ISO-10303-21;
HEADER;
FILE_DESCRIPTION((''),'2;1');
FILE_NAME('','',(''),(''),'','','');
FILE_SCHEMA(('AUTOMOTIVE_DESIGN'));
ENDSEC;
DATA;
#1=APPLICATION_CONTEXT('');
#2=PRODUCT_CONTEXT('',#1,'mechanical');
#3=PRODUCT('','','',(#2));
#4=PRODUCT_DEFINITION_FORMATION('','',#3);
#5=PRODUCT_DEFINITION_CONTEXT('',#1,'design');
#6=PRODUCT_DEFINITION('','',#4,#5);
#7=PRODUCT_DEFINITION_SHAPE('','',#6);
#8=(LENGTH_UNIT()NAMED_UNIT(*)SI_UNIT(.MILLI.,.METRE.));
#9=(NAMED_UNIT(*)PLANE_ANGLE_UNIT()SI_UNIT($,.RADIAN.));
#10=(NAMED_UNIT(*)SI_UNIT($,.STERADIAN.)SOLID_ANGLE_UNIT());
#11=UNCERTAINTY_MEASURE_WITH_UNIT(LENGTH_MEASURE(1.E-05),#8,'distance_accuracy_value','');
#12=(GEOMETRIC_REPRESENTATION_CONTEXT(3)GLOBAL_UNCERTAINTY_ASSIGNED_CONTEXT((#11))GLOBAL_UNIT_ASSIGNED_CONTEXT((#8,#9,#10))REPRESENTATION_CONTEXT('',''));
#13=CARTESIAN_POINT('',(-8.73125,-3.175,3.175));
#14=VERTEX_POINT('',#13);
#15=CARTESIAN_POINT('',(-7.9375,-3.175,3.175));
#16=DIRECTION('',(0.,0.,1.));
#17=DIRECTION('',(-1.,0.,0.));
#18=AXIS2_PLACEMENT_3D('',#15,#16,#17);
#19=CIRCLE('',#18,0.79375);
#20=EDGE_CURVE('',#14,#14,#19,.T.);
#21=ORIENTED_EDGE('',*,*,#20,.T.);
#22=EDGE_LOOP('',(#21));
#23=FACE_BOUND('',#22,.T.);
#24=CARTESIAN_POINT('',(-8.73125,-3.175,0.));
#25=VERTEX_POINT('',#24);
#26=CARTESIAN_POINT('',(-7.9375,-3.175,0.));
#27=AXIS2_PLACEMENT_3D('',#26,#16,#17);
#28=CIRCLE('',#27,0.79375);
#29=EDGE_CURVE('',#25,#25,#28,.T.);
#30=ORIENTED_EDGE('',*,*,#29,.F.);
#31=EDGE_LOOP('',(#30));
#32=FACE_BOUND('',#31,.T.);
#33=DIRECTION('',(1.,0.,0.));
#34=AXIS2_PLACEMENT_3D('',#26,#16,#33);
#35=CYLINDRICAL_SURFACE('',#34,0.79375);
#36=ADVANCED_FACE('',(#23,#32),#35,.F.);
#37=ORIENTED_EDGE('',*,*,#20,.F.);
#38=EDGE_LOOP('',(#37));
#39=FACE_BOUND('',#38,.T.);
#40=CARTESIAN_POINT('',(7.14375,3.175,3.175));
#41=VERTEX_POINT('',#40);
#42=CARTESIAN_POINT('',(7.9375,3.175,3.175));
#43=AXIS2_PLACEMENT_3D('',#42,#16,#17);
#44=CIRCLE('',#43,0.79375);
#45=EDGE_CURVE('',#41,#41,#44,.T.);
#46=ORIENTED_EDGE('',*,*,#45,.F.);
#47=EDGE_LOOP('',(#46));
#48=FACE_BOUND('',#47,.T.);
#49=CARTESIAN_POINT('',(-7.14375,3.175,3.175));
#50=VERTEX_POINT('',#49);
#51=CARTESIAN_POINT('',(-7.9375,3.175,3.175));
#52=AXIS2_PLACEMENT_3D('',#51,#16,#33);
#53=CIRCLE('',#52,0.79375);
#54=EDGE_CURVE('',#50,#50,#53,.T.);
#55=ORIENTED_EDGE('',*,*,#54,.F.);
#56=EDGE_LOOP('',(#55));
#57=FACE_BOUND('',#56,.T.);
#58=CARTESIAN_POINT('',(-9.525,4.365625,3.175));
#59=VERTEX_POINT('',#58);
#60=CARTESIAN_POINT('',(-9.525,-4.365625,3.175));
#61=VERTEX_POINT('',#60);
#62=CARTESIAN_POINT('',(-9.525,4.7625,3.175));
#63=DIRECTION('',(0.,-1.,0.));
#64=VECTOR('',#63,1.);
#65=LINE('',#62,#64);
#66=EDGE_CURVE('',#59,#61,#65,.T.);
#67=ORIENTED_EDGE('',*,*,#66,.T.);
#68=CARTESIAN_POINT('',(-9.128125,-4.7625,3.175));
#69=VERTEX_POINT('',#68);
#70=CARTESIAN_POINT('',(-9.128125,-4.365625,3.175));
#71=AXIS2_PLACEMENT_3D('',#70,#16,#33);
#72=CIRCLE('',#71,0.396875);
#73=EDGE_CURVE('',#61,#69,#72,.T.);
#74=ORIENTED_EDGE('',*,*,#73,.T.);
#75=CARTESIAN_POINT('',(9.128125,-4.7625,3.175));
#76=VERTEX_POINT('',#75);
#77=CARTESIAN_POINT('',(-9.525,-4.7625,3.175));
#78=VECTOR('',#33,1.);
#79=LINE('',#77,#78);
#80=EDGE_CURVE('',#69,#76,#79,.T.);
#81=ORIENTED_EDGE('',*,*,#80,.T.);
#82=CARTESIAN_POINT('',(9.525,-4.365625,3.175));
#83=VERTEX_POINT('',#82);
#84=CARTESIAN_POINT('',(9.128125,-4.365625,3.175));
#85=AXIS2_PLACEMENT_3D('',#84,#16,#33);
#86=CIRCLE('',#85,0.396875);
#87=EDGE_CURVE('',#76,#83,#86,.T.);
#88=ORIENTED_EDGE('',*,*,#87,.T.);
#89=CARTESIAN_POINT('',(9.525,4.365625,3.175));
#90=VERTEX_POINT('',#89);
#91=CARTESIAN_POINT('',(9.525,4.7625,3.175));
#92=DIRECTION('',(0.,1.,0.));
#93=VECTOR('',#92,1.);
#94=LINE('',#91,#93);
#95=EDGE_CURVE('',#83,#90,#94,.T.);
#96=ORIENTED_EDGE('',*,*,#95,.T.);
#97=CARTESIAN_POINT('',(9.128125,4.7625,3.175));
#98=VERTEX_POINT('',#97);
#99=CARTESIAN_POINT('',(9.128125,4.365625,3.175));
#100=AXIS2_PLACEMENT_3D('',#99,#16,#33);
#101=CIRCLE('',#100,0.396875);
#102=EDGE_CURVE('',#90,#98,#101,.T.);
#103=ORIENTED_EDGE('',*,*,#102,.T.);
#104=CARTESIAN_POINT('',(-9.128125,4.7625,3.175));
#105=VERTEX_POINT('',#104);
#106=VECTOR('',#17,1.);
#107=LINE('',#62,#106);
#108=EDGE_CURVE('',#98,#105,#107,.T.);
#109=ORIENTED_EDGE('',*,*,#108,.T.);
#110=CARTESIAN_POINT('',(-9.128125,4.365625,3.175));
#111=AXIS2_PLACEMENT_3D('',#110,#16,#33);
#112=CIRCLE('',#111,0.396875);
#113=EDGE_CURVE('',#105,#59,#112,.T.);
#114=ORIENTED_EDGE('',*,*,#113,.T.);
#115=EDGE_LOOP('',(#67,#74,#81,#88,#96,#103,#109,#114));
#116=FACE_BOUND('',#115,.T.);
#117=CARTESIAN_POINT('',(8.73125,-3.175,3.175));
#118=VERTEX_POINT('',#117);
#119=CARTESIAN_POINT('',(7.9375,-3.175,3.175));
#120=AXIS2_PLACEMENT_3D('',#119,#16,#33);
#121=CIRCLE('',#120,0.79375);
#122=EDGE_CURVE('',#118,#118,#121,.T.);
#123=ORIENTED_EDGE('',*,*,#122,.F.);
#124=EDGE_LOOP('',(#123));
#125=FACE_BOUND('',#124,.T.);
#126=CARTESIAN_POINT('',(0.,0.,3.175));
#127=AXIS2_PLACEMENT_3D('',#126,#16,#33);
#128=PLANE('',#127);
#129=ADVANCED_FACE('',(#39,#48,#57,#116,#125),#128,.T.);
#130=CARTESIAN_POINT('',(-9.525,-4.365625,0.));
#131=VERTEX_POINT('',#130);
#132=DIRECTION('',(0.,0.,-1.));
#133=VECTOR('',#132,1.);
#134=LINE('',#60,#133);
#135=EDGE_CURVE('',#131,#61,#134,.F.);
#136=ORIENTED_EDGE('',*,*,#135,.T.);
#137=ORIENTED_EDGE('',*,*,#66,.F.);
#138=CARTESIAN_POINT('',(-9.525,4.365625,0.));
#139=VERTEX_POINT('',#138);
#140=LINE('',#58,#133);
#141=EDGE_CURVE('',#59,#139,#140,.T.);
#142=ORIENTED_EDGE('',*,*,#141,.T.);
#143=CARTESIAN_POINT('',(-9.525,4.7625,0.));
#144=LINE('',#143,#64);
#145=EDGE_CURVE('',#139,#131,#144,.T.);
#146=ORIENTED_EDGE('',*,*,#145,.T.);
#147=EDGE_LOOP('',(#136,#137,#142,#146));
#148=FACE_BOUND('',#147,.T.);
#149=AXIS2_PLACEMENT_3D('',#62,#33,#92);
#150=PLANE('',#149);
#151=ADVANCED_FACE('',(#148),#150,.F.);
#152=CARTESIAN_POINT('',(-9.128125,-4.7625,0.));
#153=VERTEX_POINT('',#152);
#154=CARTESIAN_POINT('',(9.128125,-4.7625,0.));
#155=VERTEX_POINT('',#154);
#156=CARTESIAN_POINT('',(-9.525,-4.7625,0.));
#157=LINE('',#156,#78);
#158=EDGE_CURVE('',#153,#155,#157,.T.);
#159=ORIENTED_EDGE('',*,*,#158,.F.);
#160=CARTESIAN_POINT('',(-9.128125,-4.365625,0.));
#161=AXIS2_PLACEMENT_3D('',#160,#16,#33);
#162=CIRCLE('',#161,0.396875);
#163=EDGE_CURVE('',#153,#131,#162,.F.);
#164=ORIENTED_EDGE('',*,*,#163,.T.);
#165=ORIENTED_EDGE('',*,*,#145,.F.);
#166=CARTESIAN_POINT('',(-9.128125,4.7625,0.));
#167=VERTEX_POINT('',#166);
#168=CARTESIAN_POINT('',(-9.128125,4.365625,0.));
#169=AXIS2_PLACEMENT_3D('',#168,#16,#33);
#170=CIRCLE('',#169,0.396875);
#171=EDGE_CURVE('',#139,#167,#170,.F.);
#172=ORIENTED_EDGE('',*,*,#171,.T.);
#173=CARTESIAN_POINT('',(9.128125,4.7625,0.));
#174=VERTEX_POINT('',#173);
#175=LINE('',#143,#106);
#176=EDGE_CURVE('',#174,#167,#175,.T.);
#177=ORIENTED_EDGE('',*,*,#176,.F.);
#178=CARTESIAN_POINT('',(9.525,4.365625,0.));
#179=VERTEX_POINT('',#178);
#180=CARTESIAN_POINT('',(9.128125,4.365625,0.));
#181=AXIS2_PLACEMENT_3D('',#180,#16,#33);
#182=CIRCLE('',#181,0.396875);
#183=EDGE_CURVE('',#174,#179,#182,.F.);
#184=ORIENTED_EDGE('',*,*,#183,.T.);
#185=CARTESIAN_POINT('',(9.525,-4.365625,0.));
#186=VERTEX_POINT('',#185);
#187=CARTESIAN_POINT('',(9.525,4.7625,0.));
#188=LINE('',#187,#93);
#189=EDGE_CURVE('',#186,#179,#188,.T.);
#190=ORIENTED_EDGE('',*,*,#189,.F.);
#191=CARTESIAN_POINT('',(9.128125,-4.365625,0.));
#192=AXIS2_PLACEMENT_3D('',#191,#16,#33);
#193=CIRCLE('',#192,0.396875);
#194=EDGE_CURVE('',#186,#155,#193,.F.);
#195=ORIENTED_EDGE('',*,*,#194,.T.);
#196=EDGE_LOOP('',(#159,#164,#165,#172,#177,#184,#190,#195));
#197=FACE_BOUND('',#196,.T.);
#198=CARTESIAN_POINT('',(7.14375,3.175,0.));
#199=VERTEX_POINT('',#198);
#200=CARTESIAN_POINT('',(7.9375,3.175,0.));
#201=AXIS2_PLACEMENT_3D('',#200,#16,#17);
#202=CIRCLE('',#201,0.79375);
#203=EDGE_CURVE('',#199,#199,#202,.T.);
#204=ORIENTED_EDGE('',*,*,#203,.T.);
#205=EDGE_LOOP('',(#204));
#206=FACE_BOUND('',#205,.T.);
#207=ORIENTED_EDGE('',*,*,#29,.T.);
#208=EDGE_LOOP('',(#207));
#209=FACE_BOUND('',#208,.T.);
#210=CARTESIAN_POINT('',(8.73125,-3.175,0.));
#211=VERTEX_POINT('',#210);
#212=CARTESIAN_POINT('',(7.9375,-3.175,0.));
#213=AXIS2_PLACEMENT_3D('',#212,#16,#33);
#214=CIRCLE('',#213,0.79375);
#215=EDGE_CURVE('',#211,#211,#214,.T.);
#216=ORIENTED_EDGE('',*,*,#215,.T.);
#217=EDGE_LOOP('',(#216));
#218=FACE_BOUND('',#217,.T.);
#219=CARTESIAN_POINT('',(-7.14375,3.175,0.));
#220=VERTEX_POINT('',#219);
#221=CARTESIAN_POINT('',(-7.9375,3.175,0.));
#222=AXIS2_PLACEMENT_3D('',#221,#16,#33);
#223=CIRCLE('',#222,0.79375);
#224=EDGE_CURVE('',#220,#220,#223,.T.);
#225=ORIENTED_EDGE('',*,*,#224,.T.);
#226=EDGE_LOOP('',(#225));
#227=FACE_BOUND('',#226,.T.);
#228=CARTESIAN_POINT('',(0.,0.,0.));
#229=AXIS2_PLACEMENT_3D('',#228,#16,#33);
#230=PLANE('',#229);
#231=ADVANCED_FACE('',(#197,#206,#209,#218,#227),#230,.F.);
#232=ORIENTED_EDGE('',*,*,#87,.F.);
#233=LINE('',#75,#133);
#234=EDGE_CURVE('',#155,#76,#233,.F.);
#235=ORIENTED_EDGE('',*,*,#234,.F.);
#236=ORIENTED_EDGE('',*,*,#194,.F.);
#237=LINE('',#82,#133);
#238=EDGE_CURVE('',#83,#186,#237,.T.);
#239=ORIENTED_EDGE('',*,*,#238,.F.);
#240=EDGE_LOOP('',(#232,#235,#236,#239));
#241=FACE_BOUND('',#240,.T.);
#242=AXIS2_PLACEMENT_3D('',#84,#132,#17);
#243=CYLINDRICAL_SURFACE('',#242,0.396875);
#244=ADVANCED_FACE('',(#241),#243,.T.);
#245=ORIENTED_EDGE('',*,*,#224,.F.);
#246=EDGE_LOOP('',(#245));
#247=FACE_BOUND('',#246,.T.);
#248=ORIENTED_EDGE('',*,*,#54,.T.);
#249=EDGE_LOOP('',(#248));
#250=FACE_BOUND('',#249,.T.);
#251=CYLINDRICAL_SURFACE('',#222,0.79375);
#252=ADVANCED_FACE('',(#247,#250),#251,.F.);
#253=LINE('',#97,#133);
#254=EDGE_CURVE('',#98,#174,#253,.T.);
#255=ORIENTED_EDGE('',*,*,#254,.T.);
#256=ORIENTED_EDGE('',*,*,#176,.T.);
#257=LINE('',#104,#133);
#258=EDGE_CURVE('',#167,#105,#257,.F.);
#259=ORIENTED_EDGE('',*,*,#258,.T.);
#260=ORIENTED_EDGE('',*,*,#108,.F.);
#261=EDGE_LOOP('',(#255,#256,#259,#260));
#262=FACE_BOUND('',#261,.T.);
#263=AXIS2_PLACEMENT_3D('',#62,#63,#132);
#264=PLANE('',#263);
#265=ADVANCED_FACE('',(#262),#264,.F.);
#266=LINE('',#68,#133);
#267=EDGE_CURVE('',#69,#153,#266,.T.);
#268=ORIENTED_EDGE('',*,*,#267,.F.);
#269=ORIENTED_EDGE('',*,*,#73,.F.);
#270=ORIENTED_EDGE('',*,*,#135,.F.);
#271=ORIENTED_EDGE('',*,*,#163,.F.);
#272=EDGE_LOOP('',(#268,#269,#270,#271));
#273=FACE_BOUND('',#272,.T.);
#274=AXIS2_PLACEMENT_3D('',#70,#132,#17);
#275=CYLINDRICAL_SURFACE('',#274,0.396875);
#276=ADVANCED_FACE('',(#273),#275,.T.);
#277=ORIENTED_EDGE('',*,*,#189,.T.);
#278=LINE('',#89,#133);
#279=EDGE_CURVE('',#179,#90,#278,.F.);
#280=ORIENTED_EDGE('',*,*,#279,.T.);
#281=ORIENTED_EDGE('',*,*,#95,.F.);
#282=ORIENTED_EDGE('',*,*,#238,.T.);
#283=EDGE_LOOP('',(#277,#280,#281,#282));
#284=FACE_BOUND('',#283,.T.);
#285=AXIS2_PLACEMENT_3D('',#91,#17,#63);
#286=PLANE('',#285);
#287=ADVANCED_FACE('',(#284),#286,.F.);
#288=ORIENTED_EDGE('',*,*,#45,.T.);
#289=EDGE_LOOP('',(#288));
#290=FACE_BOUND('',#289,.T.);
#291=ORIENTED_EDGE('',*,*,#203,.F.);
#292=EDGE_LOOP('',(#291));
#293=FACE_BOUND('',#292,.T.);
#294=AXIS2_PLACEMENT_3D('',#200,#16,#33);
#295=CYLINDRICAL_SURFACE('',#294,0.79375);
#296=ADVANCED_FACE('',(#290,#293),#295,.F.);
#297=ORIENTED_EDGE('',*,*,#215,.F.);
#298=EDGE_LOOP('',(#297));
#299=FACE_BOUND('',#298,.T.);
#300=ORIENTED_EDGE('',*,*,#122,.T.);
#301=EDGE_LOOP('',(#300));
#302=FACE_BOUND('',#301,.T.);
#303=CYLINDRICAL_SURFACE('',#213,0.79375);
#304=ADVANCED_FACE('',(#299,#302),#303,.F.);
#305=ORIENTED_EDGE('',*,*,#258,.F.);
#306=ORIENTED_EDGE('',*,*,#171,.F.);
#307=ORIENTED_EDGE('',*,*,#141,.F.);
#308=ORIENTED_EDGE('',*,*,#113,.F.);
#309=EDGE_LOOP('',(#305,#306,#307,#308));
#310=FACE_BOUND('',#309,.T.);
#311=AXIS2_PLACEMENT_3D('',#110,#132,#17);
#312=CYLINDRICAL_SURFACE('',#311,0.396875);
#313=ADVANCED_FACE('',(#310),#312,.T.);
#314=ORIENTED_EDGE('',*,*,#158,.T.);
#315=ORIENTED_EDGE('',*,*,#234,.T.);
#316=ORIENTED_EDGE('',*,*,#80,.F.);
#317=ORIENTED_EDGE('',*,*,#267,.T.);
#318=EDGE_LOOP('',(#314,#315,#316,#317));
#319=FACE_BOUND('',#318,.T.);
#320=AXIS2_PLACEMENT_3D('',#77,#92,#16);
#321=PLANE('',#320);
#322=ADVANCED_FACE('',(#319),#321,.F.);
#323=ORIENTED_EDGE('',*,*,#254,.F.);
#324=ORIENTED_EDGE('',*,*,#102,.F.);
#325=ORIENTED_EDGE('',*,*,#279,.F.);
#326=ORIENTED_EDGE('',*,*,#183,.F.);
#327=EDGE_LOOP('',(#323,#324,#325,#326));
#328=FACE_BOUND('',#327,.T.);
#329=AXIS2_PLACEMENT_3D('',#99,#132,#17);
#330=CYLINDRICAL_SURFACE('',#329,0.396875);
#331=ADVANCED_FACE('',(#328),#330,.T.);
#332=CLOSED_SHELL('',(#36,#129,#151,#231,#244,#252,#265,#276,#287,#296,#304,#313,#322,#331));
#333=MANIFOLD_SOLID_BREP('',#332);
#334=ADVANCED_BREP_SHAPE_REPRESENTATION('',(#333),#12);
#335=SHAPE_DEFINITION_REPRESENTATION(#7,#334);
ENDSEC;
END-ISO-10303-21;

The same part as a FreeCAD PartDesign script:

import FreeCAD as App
import Part
import Sketcher
Q = App.Units.Quantity


def edges_at(feature, points):
    """Names of the edges that pass closest to the given points."""
    edges = feature.Shape.Edges
    near = lambda p: min(range(len(edges)), key=lambda i: edges[i].distToShape(Part.Vertex(*p))[0])
    return sorted({f"Edge{near(p) + 1}" for p in points})


def add_polygon(sketch, points):
    """Adds a closed chain of lines whose ends are joined by coincident constraints."""
    first, n = sketch.GeometryCount, len(points)
    for a, b in zip(points, points[1:] + points[:1]):
        sketch.addGeometry(Part.LineSegment(App.Vector(*a, 0), App.Vector(*b, 0)), False)
    for i in range(n):
        sketch.addConstraint(Sketcher.Constraint("Coincident", first + i, 2, first + (i + 1) % n, 1))

doc = App.newDocument("Part")
body = doc.addObject("PartDesign::Body", "Body")

sketch1 = body.newObject("Sketcher::SketchObject", "Sketch")
sketch1.AttachmentSupport = (doc.getObject("XY_Plane"), [""])
sketch1.MapMode = "FlatFace"
add_polygon(sketch1, [(-10, 5), (-10, -5), (10, -5), (10, 5)])
sketch1.addConstraint([
    Sketcher.Constraint("Vertical", 0),
    Sketcher.Constraint("Horizontal", 1),
    Sketcher.Constraint("Vertical", 2),
    Sketcher.Constraint("Horizontal", 3),
    Sketcher.Constraint("Symmetric", 0, 2, 2, 2, -1, 1),
    Sketcher.Constraint("DistanceX", 1, 1, 1, 2, Q("0.75 in")),
    Sketcher.Constraint("DistanceY", 0, 2, 0, 1, Q("0.375 in")),
])
pad1 = body.newObject("PartDesign::Pad", "Pad")
pad1.Profile = sketch1
pad1.Length = Q("0.125 in")

sketch2 = body.newObject("Sketcher::SketchObject", "Sketch001")
sketch2.AttachmentSupport = (doc.getObject("XY_Plane"), [""])
sketch2.MapMode = "FlatFace"
sketch2.AttachmentOffset = App.Placement(App.Vector(0, 0, 0.125 * 25.4), App.Rotation())
sketch2.addGeometry([
    Part.Circle(App.Vector(-7.9, 3.2, 0), App.Vector(0, 0, 1), 0.8),
    Part.Circle(App.Vector(-7.9, -3.2, 0), App.Vector(0, 0, 1), 0.8),
    Part.Circle(App.Vector(7.9, -3.2, 0), App.Vector(0, 0, 1), 0.8),
    Part.Circle(App.Vector(7.9, 3.2, 0), App.Vector(0, 0, 1), 0.8),
], False)
sketch2.addConstraint([
    Sketcher.Constraint("Equal", 0, 1),
    Sketcher.Constraint("Equal", 1, 2),
    Sketcher.Constraint("Equal", 2, 3),
    Sketcher.Constraint("Symmetric", 0, 3, 2, 3, -1, 1),
    Sketcher.Constraint("Symmetric", 1, 3, 3, 3, -1, 1),
    Sketcher.Constraint("Symmetric", 1, 3, 2, 3, -2),
    Sketcher.Constraint("Diameter", 0, Q("0.0625 in")),
    Sketcher.Constraint("DistanceY", 1, 3, 0, 3, Q("0.25 in")),
    Sketcher.Constraint("DistanceX", 0, 3, -1, 1, Q("0.3125 in")),
])
pocket1 = body.newObject("PartDesign::Pocket", "Pocket")
pocket1.Profile = sketch2
pocket1.Type = "ThroughAll"
doc.recompute()

fillet = body.newObject("PartDesign::Fillet", "Fillet")
fillet.Base = (pocket1, edges_at(pocket1, [
    (9.525, -4.763, 1.587),
    (-9.525, -4.763, 1.587),
    (-9.525, 4.763, 1.587),
    (9.525, 4.763, 1.587),
]))
fillet.Radius = Q("0.015625 in")

doc.recompute()
